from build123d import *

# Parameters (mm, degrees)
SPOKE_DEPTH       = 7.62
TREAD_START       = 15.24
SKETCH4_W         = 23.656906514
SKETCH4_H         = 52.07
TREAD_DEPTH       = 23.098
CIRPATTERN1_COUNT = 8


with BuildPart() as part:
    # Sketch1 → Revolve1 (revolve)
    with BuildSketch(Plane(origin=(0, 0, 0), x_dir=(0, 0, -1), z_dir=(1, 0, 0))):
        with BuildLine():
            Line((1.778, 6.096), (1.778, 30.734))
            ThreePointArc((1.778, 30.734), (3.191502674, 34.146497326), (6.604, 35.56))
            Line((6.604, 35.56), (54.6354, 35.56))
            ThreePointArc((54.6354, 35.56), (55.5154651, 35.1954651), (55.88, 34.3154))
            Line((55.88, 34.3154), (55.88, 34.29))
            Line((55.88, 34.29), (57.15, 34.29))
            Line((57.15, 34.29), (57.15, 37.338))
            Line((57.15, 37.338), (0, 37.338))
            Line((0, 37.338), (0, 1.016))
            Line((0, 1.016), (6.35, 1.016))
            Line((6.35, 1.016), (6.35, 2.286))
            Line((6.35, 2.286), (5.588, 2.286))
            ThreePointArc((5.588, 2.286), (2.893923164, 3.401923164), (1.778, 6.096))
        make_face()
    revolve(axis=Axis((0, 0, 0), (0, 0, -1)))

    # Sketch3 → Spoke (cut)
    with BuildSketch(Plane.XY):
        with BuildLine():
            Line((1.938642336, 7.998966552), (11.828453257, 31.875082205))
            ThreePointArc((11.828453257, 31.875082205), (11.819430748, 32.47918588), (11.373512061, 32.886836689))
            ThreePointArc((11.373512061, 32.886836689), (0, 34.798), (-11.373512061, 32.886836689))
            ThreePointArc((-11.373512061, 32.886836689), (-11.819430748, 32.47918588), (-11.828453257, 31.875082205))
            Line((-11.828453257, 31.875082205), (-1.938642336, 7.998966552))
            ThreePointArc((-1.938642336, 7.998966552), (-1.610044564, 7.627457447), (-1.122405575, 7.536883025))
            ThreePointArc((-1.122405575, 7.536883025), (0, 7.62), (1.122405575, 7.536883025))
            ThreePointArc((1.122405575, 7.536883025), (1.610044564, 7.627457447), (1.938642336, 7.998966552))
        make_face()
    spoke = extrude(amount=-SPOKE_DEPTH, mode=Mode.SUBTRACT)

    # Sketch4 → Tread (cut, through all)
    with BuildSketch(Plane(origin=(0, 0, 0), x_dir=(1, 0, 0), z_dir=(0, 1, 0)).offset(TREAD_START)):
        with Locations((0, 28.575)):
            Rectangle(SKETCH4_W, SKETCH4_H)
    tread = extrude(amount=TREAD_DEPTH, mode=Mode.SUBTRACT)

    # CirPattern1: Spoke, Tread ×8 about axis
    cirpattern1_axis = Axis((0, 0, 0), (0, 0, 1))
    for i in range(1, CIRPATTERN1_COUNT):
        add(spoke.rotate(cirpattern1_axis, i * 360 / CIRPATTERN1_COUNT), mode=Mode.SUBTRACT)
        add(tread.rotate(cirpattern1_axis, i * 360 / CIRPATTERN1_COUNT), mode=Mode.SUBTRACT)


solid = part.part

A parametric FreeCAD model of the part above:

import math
import FreeCAD as App
import Part
import Sketcher
from FreeCAD import Vector
Q = App.Units.Quantity

doc = App.newDocument("Part")
params = doc.addObject("Spreadsheet::Sheet", "Params")
for row, (alias, value) in enumerate([
    ("sketch1_radius", "0.19 in"),
    ("sketch1_radius2", "0.15 in"),
    ("sketch1_radius3", "0.049 in"),
    ("sketch1_width", "0.97 in"),
    ("sketch1_width2", "0.12 in"),
    ("revolution_angle", "360 deg"),
    ("sketch2_radius", "0.3 in"),
    ("sketch2_radius2", "0.03 in"),
    ("sketch2_radius3", "1.37 in"),
    ("pocket1_length", "0.3 in"),
    ("sketch3_height", "2.05 in"),
], start=1):
    params.set(f"A{row}", alias)
    params.set(f"B{row}", "=" + value)
    params.setAlias(f"B{row}", alias)

body = doc.addObject("PartDesign::Body", "Body")

# Sketch on YZ plane
sketch1 = body.newObject("Sketcher::SketchObject", "Sketch")
sketch1.AttachmentSupport = (doc.getObject("YZ_Plane"), [""])
sketch1.MapMode = "FlatFace"
sketch1.addGeometry([
    Part.LineSegment(Vector(6.096, -1.778, 0), Vector(30.734, -1.778, 0)),  # 0
    Part.ArcOfCircle(Part.Circle(Vector(30.734, -6.604, 0), Vector(0, 0, 1), 4.826), math.radians(0), math.radians(90)),  # 1
    Part.LineSegment(Vector(35.56, -6.604, 0), Vector(35.56, -54.635, 0)),  # 2
    Part.ArcOfCircle(Part.Circle(Vector(34.315, -54.635, 0), Vector(0, 0, 1), 1.245), math.radians(-90), math.radians(0)),  # 3
    Part.LineSegment(Vector(34.315, -55.88, 0), Vector(34.29, -55.88, 0)),  # 4
    Part.LineSegment(Vector(34.29, -55.88, 0), Vector(34.29, -57.15, 0)),  # 5
    Part.LineSegment(Vector(34.29, -57.15, 0), Vector(37.338, -57.15, 0)),  # 6
    Part.LineSegment(Vector(37.338, -57.15, 0), Vector(37.338, 0, 0)),  # 7
    Part.LineSegment(Vector(37.338, 0, 0), Vector(1.016, 0, 0)),  # 8
    Part.LineSegment(Vector(1.016, 0, 0), Vector(1.016, -6.35, 0)),  # 9
    Part.LineSegment(Vector(1.016, -6.35, 0), Vector(2.286, -6.35, 0)),  # 10
    Part.LineSegment(Vector(2.286, -6.35, 0), Vector(2.286, -5.588, 0)),  # 11
    Part.ArcOfCircle(Part.Circle(Vector(6.096, -5.588, 0), Vector(0, 0, 1), 3.81), math.radians(90), math.radians(180)),  # 12
], False)
sketch1.addConstraint([
    Sketcher.Constraint("Tangent", 0, 2, 1, 2),
    Sketcher.Constraint("Tangent", 1, 1, 2, 1),
    Sketcher.Constraint("Tangent", 2, 2, 3, 2),
    Sketcher.Constraint("Tangent", 3, 1, 4, 1),
    Sketcher.Constraint("Coincident", 4, 2, 5, 1),
    Sketcher.Constraint("Coincident", 5, 2, 6, 1),
    Sketcher.Constraint("Coincident", 6, 2, 7, 1),
    Sketcher.Constraint("Coincident", 7, 2, 8, 1),
    Sketcher.Constraint("Coincident", 8, 2, 9, 1),
    Sketcher.Constraint("Coincident", 9, 2, 10, 1),
    Sketcher.Constraint("Coincident", 10, 2, 11, 1),
    Sketcher.Constraint("Tangent", 11, 2, 12, 2),
    Sketcher.Constraint("Tangent", 12, 1, 0, 1),
    Sketcher.Constraint("Horizontal", 0),
    Sketcher.Constraint("Vertical", 2),
    Sketcher.Constraint("Horizontal", 4),
    Sketcher.Constraint("Vertical", 5),
    Sketcher.Constraint("Horizontal", 6),
    Sketcher.Constraint("Vertical", 7),
    Sketcher.Constraint("Horizontal", 8),
    Sketcher.Constraint("Vertical", 9),
    Sketcher.Constraint("Horizontal", 10),
    Sketcher.Constraint("Vertical", 11),
    Sketcher.Constraint("PointOnObject", 7, 2, -1),
    Sketcher.Constraint("Equal", 10, 5),
    Sketcher.Constraint("Radius", 1, Q("0.19 in")),
    Sketcher.Constraint("Radius", 12, Q("0.15 in")),
    Sketcher.Constraint("Radius", 3, Q("0.049 in")),
    Sketcher.Constraint("DistanceX", 0, 1, 0, 2, Q("0.97 in")),
    Sketcher.Constraint("DistanceX", 6, 1, 6, 2, Q("0.12 in")),
    Sketcher.Constraint("DistanceX", 8, 2, 8, 1, Q("1.43 in")),
    Sketcher.Constraint("DistanceX", 10, 1, 10, 2, Q("0.05 in")),
    Sketcher.Constraint("DistanceY", 7, 1, 7, 2, Q("2.25 in")),
    Sketcher.Constraint("DistanceY", 9, 2, 9, 1, Q("0.25 in")),
    Sketcher.Constraint("DistanceY", 11, 1, 11, 2, Q("0.03 in")),
    Sketcher.Constraint("DistanceX", -1, 1, 1, 1, Q("1.4 in")),
])
sketch1.setExpression("Constraints[25]", "Params.sketch1_radius")
sketch1.setExpression("Constraints[26]", "Params.sketch1_radius2")
sketch1.setExpression("Constraints[27]", "Params.sketch1_radius3")
sketch1.setExpression("Constraints[28]", "Params.sketch1_width")
sketch1.setExpression("Constraints[29]", "Params.sketch1_width2")
revolution = body.newObject("PartDesign::Revolution", "Revolution")
revolution.Profile = sketch1
revolution.ReferenceAxis = (sketch1, ["V_Axis"])
revolution.setExpression("Angle", "Params.revolution_angle")

# Sketch on XY plane
sketch2 = body.newObject("Sketcher::SketchObject", "Sketch001")
sketch2.AttachmentSupport = (doc.getObject("XY_Plane"), [""])
sketch2.MapMode = "FlatFace"
sketch2.addGeometry([
    Part.LineSegment(Vector(1.9, 8, 0), Vector(11.8, 31.9, 0)),  # 0
    Part.ArcOfCircle(Part.Circle(Vector(11.1, 32.2, 0), Vector(0, 0, 1), 0.8), math.radians(-22), math.radians(71)),  # 1
    Part.ArcOfCircle(Part.Circle(Vector(0, 0, 0), Vector(0, 0, 1), 34.8), math.radians(71), math.radians(109)),  # 2
    Part.ArcOfCircle(Part.Circle(Vector(-11.1, 32.2, 0), Vector(0, 0, 1), 0.8), math.radians(109), math.radians(202)),  # 3
    Part.LineSegment(Vector(-11.8, 31.9, 0), Vector(-1.9, 8, 0)),  # 4
    Part.ArcOfCircle(Part.Circle(Vector(-1.2, 8.3, 0), Vector(0, 0, 1), 0.8), math.radians(-158), math.radians(-82)),  # 5
    Part.ArcOfCircle(Part.Circle(Vector(0, 0, 0), Vector(0, 0, 1), 7.6), math.radians(81.53), math.radians(98.47)),  # 6
    Part.ArcOfCircle(Part.Circle(Vector(1.2, 8.3, 0), Vector(0, 0, 1), 0.8), math.radians(-98), math.radians(-22)),  # 7
], False)
sketch2.addConstraint([
    Sketcher.Constraint("Tangent", 0, 2, 1, 1),
    Sketcher.Constraint("Tangent", 1, 2, 2, 1),
    Sketcher.Constraint("Tangent", 2, 2, 3, 1),
    Sketcher.Constraint("Tangent", 3, 2, 4, 1),
    Sketcher.Constraint("Tangent", 4, 2, 5, 1),
    Sketcher.Constraint("Tangent", 5, 2, 6, 2),
    Sketcher.Constraint("Tangent", 6, 1, 7, 1),
    Sketcher.Constraint("Tangent", 7, 2, 0, 1),
    Sketcher.Constraint("Coincident", 2, 3, -1, 1),
    Sketcher.Constraint("Coincident", 6, 3, -1, 1),
    Sketcher.Constraint("Equal", 1, 3),
    Sketcher.Constraint("Equal", 3, 5),
    Sketcher.Constraint("Equal", 5, 7),
    Sketcher.Constraint("Symmetric", 0, 2, 3, 2, -2),
    Sketcher.Constraint("Radius", 6, Q("0.3 in")),
    Sketcher.Constraint("Radius", 1, Q("0.03 in")),
    Sketcher.Constraint("Radius", 2, Q("1.37 in")),
    Sketcher.Constraint("Angle", 0, Q("67.5 deg")),
    Sketcher.Constraint("DistanceX", 5, 3, 0, 2, Q("13.063099 mm")),
])
sketch2.setExpression("Constraints[14]", "Params.sketch2_radius")
sketch2.setExpression("Constraints[15]", "Params.sketch2_radius2")
sketch2.setExpression("Constraints[16]", "Params.sketch2_radius3")
pocket1 = body.newObject("PartDesign::Pocket", "Pocket")
pocket1.Profile = sketch2
pocket1.setExpression("Length", "Params.pocket1_length")

# Sketch on XZ plane
sketch3 = body.newObject("Sketcher::SketchObject", "Sketch002")
sketch3.AttachmentSupport = (doc.getObject("XZ_Plane"), [""])
sketch3.MapMode = "FlatFace"
sketch3.AttachmentOffset = App.Placement(Vector(0, 0, -0.6 * 25.4), App.Rotation())
sketch3.addGeometry([
    Part.LineSegment(Vector(-12, -55, 0), Vector(-12, -3, 0)),
    Part.LineSegment(Vector(-12, -3, 0), Vector(12, -3, 0)),
    Part.LineSegment(Vector(12, -3, 0), Vector(12, -55, 0)),
    Part.LineSegment(Vector(12, -55, 0), Vector(-12, -55, 0)),
], False)
sketch3.addConstraint([
    Sketcher.Constraint("Coincident", 0, 2, 1, 1),
    Sketcher.Constraint("Coincident", 1, 2, 2, 1),
    Sketcher.Constraint("Coincident", 2, 2, 3, 1),
    Sketcher.Constraint("Coincident", 3, 2, 0, 1),
    Sketcher.Constraint("Vertical", 0),
    Sketcher.Constraint("Horizontal", 1),
    Sketcher.Constraint("Vertical", 2),
    Sketcher.Constraint("Horizontal", 3),
    Sketcher.Constraint("DistanceY", 0, 1, 0, 2, Q("2.05 in")),
    Sketcher.Constraint("DistanceY", 0, 2, -1, 1, Q("0.1 in")),
    Sketcher.Constraint("DistanceX", 1, 1, 1, 2, Q("23.656907 mm")),
    Sketcher.Constraint("DistanceX", 0, 2, -1, 1, Q("11.828453 mm")),
])
sketch3.setExpression("Constraints[8]", "Params.sketch3_height")
pocket2 = body.newObject("PartDesign::Pocket", "Pocket001")
pocket2.Profile = sketch3
pocket2.Type = "ThroughAll"
doc.recompute()

polarpattern = body.newObject("PartDesign::PolarPattern", "PolarPattern")
polarpattern.Originals = [pocket1, pocket2]
polarpattern.Axis = (doc.getObject("Z_Axis"), [""])
polarpattern.Angle = 360
polarpattern.Occurrences = 8
body.Tip = polarpattern

doc.recompute()
